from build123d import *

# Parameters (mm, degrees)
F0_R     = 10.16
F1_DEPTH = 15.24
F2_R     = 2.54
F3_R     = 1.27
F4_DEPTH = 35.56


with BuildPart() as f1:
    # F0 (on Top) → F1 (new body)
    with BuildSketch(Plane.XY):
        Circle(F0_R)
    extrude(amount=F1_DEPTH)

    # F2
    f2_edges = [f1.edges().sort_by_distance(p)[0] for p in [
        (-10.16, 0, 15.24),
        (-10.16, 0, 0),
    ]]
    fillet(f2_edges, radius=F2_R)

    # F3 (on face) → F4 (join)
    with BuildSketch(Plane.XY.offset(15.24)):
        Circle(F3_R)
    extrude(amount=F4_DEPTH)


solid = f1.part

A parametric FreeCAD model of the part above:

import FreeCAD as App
import Part
import Sketcher
Q = App.Units.Quantity


def edges_at(feature, points):
    """Names of the edges that pass closest to the given points."""
    edges = feature.Shape.Edges
    near = lambda p: min(range(len(edges)), key=lambda i: edges[i].distToShape(Part.Vertex(*p))[0])
    return sorted({f"Edge{near(p) + 1}" for p in points})

doc = App.newDocument("Part")
params = doc.addObject("Spreadsheet::Sheet", "Params")
for row, (alias, value) in enumerate([
    ("sketch1_diameter", "0.8 in"),
    ("pad1_length", "0.6 in"),
    ("fillet_radius", "0.1 in"),
    ("sketch2_diameter", "0.1 in"),
    ("pad2_length", "1.4 in"),
], start=1):
    params.set(f"A{row}", alias)
    params.set(f"B{row}", "=" + value)
    params.setAlias(f"B{row}", alias)

body = doc.addObject("PartDesign::Body", "Body")

# Sketch on XY plane
sketch1 = body.newObject("Sketcher::SketchObject", "Sketch")
sketch1.AttachmentSupport = (doc.getObject("XY_Plane"), [""])
sketch1.MapMode = "FlatFace"
sketch1.addGeometry(Part.Circle(App.Vector(0, 0, 0), App.Vector(0, 0, 1), 10), False)
sketch1.addConstraint([
    Sketcher.Constraint("Coincident", 0, 3, -1, 1),
    Sketcher.Constraint("Diameter", 0, Q("0.8 in")),
])
sketch1.setExpression("Constraints[1]", "Params.sketch1_diameter")
pad1 = body.newObject("PartDesign::Pad", "Pad")
pad1.Profile = sketch1
pad1.setExpression("Length", "Params.pad1_length")
doc.recompute()

fillet = body.newObject("PartDesign::Fillet", "Fillet")
fillet.Base = (pad1, edges_at(pad1, [(-10.16, 0, 15.24), (-10.16, 0, 0)]))
fillet.setExpression("Radius", "Params.fillet_radius")

# Sketch on XY plane
sketch2 = body.newObject("Sketcher::SketchObject", "Sketch001")
sketch2.AttachmentSupport = (doc.getObject("XY_Plane"), [""])
sketch2.MapMode = "FlatFace"
sketch2.AttachmentOffset = App.Placement(App.Vector(0, 0, 0.6 * 25.4), App.Rotation())
sketch2.addGeometry(Part.Circle(App.Vector(0, 0, 0), App.Vector(0, 0, 1), 1.3), False)
sketch2.addConstraint([
    Sketcher.Constraint("Coincident", 0, 3, -1, 1),
    Sketcher.Constraint("Diameter", 0, Q("0.1 in")),
])
sketch2.setExpression("Constraints[1]", "Params.sketch2_diameter")
pad2 = body.newObject("PartDesign::Pad", "Pad001")
pad2.Profile = sketch2
pad2.setExpression("Length", "Params.pad2_length")

doc.recompute()
